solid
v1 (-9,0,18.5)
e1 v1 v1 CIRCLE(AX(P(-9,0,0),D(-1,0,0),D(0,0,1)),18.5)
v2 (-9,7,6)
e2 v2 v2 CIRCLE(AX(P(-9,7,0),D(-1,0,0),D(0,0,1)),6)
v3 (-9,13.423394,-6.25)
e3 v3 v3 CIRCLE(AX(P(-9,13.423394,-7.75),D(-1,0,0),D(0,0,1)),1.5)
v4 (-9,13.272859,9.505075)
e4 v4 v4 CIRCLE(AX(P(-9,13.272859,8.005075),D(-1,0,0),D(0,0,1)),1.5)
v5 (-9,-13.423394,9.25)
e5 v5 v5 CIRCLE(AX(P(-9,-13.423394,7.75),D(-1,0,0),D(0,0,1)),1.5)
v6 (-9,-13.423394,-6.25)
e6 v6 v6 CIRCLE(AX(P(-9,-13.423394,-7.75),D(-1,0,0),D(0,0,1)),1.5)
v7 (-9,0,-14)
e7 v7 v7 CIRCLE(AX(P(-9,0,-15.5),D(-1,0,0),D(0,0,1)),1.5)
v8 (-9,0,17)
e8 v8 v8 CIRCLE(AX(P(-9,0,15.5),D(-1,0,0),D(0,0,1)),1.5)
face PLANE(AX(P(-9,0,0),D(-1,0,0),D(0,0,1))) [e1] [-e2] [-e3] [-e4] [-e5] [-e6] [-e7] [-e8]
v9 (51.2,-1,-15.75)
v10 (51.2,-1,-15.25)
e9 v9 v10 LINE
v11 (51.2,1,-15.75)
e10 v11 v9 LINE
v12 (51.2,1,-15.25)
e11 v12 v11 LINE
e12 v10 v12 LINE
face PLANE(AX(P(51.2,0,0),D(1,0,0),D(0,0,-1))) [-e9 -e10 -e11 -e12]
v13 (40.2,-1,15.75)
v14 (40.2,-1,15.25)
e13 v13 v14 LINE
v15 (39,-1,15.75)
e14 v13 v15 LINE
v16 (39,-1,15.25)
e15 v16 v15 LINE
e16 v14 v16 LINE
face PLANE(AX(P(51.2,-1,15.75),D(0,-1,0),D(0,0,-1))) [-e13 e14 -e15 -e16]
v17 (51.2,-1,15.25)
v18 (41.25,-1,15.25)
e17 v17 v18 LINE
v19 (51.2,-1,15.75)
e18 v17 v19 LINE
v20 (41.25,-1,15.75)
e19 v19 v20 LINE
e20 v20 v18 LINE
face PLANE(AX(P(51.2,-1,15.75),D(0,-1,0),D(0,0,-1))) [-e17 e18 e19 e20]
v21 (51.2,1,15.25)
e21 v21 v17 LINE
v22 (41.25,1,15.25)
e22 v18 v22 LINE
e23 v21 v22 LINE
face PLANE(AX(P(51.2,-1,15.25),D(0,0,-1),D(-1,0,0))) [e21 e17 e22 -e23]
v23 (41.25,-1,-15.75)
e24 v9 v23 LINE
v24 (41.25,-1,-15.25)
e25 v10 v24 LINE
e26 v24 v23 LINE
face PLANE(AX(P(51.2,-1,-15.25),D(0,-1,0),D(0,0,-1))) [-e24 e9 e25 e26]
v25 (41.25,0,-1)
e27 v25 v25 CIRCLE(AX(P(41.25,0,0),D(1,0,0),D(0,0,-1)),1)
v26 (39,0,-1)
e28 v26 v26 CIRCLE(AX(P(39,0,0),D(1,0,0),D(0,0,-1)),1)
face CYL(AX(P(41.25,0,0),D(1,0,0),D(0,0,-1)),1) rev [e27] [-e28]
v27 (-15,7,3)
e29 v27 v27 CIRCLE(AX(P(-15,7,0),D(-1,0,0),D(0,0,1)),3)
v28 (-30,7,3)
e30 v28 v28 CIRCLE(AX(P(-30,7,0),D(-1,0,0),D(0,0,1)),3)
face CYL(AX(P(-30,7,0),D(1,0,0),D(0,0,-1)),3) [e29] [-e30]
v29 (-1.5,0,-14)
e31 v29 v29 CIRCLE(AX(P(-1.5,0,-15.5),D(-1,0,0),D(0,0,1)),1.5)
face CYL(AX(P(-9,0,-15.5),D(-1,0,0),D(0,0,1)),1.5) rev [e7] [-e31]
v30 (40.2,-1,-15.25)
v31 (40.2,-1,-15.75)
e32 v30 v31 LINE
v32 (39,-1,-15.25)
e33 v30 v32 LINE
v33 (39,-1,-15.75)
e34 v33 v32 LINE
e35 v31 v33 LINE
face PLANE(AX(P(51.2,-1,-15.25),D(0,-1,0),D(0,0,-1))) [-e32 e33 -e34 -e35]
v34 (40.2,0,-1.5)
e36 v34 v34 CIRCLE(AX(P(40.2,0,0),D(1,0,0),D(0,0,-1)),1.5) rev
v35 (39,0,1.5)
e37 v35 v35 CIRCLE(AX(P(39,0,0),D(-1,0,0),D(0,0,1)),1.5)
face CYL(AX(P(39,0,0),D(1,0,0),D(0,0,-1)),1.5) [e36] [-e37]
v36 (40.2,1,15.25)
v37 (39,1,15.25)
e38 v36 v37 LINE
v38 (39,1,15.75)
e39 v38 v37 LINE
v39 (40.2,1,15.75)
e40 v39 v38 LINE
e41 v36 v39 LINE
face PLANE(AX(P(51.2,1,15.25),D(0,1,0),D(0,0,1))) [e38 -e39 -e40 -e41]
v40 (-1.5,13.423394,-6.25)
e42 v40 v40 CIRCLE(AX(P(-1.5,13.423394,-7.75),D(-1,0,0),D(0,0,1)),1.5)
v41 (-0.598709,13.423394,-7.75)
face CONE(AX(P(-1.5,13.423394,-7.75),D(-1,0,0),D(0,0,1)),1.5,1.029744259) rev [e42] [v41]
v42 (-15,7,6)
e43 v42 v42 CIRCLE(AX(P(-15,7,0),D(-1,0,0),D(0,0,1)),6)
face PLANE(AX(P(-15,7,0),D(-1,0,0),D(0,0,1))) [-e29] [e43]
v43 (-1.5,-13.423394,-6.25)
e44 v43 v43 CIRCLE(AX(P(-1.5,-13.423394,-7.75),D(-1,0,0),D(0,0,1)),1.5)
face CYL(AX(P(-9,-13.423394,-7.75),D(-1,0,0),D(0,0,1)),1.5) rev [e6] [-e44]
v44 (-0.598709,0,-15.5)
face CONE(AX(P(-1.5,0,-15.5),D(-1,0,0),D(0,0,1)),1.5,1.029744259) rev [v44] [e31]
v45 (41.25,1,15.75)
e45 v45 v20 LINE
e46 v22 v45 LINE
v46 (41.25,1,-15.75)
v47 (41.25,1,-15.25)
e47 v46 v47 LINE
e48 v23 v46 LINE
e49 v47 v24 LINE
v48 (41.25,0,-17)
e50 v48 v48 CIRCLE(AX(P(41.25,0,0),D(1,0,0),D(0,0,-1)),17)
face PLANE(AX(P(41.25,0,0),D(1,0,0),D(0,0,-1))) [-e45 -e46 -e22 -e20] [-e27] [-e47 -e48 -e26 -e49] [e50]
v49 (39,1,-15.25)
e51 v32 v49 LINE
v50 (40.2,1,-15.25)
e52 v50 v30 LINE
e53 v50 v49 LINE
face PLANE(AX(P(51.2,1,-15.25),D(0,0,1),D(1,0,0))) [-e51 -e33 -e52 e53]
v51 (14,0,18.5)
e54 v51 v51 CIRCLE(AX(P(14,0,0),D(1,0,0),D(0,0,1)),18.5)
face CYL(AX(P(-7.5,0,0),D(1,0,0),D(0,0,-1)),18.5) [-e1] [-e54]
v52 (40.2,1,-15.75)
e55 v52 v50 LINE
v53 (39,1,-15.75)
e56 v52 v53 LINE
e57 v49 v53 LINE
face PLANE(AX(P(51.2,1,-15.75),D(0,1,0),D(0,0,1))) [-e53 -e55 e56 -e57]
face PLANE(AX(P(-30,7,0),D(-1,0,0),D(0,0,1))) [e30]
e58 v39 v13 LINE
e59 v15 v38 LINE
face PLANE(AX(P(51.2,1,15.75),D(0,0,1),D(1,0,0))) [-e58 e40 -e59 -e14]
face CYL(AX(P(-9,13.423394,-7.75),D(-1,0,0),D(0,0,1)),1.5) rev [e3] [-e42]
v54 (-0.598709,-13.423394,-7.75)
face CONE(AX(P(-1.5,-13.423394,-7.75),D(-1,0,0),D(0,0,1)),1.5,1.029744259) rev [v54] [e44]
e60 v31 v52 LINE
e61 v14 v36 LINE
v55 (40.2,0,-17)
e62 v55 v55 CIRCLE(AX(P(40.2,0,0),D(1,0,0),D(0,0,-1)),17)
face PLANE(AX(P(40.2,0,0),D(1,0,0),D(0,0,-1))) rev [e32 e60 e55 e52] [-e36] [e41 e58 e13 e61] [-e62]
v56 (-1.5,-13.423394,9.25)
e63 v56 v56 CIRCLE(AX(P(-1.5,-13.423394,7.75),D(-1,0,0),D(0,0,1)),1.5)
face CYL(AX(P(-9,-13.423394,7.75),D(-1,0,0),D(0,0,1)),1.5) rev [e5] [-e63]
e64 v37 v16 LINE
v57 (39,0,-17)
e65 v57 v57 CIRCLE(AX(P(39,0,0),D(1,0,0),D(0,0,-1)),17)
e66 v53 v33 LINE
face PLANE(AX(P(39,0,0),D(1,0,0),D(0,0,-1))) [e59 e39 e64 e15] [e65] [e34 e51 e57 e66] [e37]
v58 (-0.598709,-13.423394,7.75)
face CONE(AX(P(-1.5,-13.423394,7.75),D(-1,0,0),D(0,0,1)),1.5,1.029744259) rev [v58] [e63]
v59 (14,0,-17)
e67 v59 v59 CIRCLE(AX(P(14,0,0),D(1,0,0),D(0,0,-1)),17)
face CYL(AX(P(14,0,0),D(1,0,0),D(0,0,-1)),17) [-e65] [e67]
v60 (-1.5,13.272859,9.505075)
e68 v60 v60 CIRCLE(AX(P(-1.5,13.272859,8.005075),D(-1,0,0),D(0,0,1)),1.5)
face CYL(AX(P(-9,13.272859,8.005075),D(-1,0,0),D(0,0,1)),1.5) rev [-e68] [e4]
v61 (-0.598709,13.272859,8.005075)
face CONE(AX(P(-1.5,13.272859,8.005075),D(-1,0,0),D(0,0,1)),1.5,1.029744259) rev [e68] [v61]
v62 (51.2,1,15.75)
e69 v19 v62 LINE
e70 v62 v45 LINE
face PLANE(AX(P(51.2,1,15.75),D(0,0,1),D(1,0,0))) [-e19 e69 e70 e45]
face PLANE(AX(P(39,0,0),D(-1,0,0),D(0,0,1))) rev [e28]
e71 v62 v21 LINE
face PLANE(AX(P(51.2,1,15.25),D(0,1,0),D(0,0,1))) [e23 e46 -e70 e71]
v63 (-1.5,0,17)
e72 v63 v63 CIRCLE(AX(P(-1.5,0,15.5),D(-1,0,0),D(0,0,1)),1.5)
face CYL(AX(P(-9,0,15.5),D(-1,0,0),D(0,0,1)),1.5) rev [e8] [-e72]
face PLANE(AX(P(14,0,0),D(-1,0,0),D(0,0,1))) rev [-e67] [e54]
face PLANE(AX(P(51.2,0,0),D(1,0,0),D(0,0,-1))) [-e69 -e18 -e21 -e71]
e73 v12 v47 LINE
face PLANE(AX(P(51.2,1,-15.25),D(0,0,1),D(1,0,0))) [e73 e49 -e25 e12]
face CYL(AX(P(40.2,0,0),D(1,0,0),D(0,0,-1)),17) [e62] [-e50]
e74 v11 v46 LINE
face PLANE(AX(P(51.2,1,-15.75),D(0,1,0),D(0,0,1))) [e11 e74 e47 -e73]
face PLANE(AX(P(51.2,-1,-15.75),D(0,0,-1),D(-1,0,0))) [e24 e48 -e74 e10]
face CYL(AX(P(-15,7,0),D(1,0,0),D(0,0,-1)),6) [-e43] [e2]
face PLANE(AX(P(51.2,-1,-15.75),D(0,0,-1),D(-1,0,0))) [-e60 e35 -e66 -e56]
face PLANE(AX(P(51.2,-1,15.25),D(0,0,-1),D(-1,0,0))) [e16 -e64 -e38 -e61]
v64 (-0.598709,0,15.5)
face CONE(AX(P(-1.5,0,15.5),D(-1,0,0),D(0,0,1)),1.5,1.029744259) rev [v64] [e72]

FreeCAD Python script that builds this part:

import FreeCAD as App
import Part
import Sketcher
from FreeCAD import Vector

doc = App.newDocument("Part")
body = doc.addObject("PartDesign::Body", "Body")

sketch1 = body.newObject("Sketcher::SketchObject", "Sketch")
sketch1.AttachmentSupport = (doc.getObject("YZ_Plane"), [""])
sketch1.MapMode = "FlatFace"
sketch1.AttachmentOffset = App.Placement(Vector(0, 0, 41.25), App.Rotation())
sketch1.addGeometry(Part.Circle(Vector(0, 0, 0), Vector(0, 0, 1), 17), False)
sketch1.addConstraint([
    Sketcher.Constraint("Coincident", 0, 3, -1, 1),
    Sketcher.Constraint("Diameter", 0, 34.0),
])
pad1 = body.newObject("PartDesign::Pad", "Pad")
pad1.Profile = sketch1
pad1.Length = 1.05
pad1.Reversed = True

sketch2 = body.newObject("Sketcher::SketchObject", "Sketch001")
sketch2.AttachmentSupport = (doc.getObject("YZ_Plane"), [""])
sketch2.MapMode = "FlatFace"
sketch2.AttachmentOffset = App.Placement(Vector(0, 0, 40.2), App.Rotation())
sketch2.addGeometry([
    Part.LineSegment(Vector(1, 15.25, 0), Vector(-1, 15.25, 0)),
    Part.LineSegment(Vector(-1, 15.25, 0), Vector(-1, 15.75, 0)),
    Part.LineSegment(Vector(-1, 15.75, 0), Vector(1, 15.75, 0)),
    Part.LineSegment(Vector(1, 15.75, 0), Vector(1, 15.25, 0)),
    Part.LineSegment(Vector(1, -15.75, 0), Vector(-1, -15.75, 0)),
    Part.LineSegment(Vector(-1, -15.75, 0), Vector(-1, -15.25, 0)),
    Part.LineSegment(Vector(-1, -15.25, 0), Vector(1, -15.25, 0)),
    Part.LineSegment(Vector(1, -15.25, 0), Vector(1, -15.75, 0)),
], False)
sketch2.addConstraint([
    Sketcher.Constraint("Coincident", 0, 2, 1, 1),
    Sketcher.Constraint("Coincident", 1, 2, 2, 1),
    Sketcher.Constraint("Coincident", 2, 2, 3, 1),
    Sketcher.Constraint("Coincident", 3, 2, 0, 1),
    Sketcher.Constraint("Coincident", 4, 2, 5, 1),
    Sketcher.Constraint("Coincident", 5, 2, 6, 1),
    Sketcher.Constraint("Coincident", 6, 2, 7, 1),
    Sketcher.Constraint("Coincident", 7, 2, 4, 1),
    Sketcher.Constraint("Horizontal", 0),
    Sketcher.Constraint("Vertical", 1),
    Sketcher.Constraint("Horizontal", 2),
    Sketcher.Constraint("Vertical", 3),
    Sketcher.Constraint("Horizontal", 4),
    Sketcher.Constraint("Vertical", 5),
    Sketcher.Constraint("Horizontal", 6),
    Sketcher.Constraint("Vertical", 7),
    Sketcher.Constraint("Symmetric", 2, 2, 4, 2, -1, 1),
    Sketcher.Constraint("Symmetric", 0, 2, 6, 2, -1, 1),
    Sketcher.Constraint("Vertical", 1, 2, 4, 2),
    Sketcher.Constraint("DistanceX", 0, 2, 0, 1, 2.0),
    Sketcher.Constraint("DistanceY", 1, 1, 1, 2, 0.5),
    Sketcher.Constraint("DistanceY", 4, 2, 0, 2, 31.0),
])
pad2 = body.newObject("PartDesign::Pad", "Pad001")
pad2.Profile = sketch2
pad2.Type = "TwoLengths"
pad2.Length = 1.2
pad2.Length2 = 11
pad2.Reversed = True

sketch3 = body.newObject("Sketcher::SketchObject", "Sketch002")
sketch3.AttachmentSupport = (doc.getObject("YZ_Plane"), [""])
sketch3.MapMode = "FlatFace"
sketch3.AttachmentOffset = App.Placement(Vector(0, 0, 40.2), App.Rotation())
sketch3.addGeometry(Part.Circle(Vector(0, 0, 0), Vector(0, 0, 1), 1.5), False)
sketch3.addConstraint([
    Sketcher.Constraint("Coincident", 0, 3, -1, 1),
    Sketcher.Constraint("Diameter", 0, 3.0),
])
pad3 = body.newObject("PartDesign::Pad", "Pad002")
pad3.Profile = sketch3
pad3.Length = 1.2
pad3.Reversed = True

sketch4 = body.newObject("Sketcher::SketchObject", "Sketch003")
sketch4.AttachmentSupport = (doc.getObject("YZ_Plane"), [""])
sketch4.MapMode = "FlatFace"
sketch4.AttachmentOffset = App.Placement(Vector(0, 0, 39), App.Rotation())
sketch4.addGeometry(Part.Circle(Vector(0, 0, 0), Vector(0, 0, 1), 17), False)
sketch4.addConstraint([
    Sketcher.Constraint("Coincident", 0, 3, -1, 1),
    Sketcher.Constraint("Diameter", 0, 34.0),
])
pad4 = body.newObject("PartDesign::Pad", "Pad003")
pad4.Profile = sketch4
pad4.Length = 25
pad4.Reversed = True

sketch5 = body.newObject("Sketcher::SketchObject", "Sketch004")
sketch5.AttachmentSupport = (doc.getObject("YZ_Plane"), [""])
sketch5.MapMode = "FlatFace"
sketch5.AttachmentOffset = App.Placement(Vector(0, 0, 14), App.Rotation())
sketch5.addGeometry(Part.Circle(Vector(0, 0, 0), Vector(0, 0, 1), 18.5), False)
sketch5.addConstraint([
    Sketcher.Constraint("Coincident", 0, 3, -1, 1),
    Sketcher.Constraint("Diameter", 0, 37.0),
])
pad5 = body.newObject("PartDesign::Pad", "Pad004")
pad5.Profile = sketch5
pad5.Length = 21.5
pad5.Reversed = True

sketch6 = body.newObject("Sketcher::SketchObject", "Sketch005")
sketch6.AttachmentSupport = (doc.getObject("YZ_Plane"), [""])
sketch6.MapMode = "FlatFace"
sketch6.AttachmentOffset = App.Placement(Vector(0, 0, -7.5), App.Rotation())
sketch6.addGeometry(Part.Circle(Vector(0, 0, 0), Vector(0, 0, 1), 18.5), False)
sketch6.addConstraint([
    Sketcher.Constraint("Coincident", 0, 3, -1, 1),
    Sketcher.Constraint("Diameter", 0, 37.0),
])
pad6 = body.newObject("PartDesign::Pad", "Pad005")
pad6.Profile = sketch6
pad6.Length = 1.5
pad6.Reversed = True

sketch7 = body.newObject("Sketcher::SketchObject", "Sketch006")
sketch7.AttachmentSupport = (doc.getObject("YZ_Plane"), [""])
sketch7.MapMode = "FlatFace"
sketch7.AttachmentOffset = App.Placement(Vector(0, 0, -9), App.Rotation())
sketch7.addGeometry(Part.Circle(Vector(7, 0, 0), Vector(0, 0, 1), 6), False)
sketch7.addConstraint([
    Sketcher.Constraint("PointOnObject", 0, 3, -1),
    Sketcher.Constraint("Diameter", 0, 12.0),
    Sketcher.Constraint("DistanceX", -1, 1, 0, 3, 7.0),
])
pad7 = body.newObject("PartDesign::Pad", "Pad006")
pad7.Profile = sketch7
pad7.Length = 6
pad7.Reversed = True

sketch8 = body.newObject("Sketcher::SketchObject", "Sketch007")
sketch8.AttachmentSupport = (doc.getObject("YZ_Plane"), [""])
sketch8.MapMode = "FlatFace"
sketch8.AttachmentOffset = App.Placement(Vector(0, 0, -15), App.Rotation())
sketch8.addGeometry(Part.Circle(Vector(7, 0, 0), Vector(0, 0, 1), 3), False)
sketch8.addConstraint([
    Sketcher.Constraint("PointOnObject", 0, 3, -1),
    Sketcher.Constraint("Diameter", 0, 6.0),
    Sketcher.Constraint("DistanceX", -1, 1, 0, 3, 7.0),
])
doc.recompute()
hole = body.newObject("PartDesign::Hole", "Hole")
hole.Profile = sketch8
hole.ThreadType = "None"
hole.Diameter = 6
hole.DepthType = "Dimension"
hole.Depth = 2.2
hole.DrillPoint = "Flat"
hole.Reversed = True

sketch9 = body.newObject("Sketcher::SketchObject", "Sketch008")
sketch9.AttachmentSupport = (doc.getObject("YZ_Plane"), [""])
sketch9.MapMode = "FlatFace"
sketch9.AttachmentOffset = App.Placement(Vector(0, 0, 41.25), App.Rotation())
sketch9.addGeometry(Part.Circle(Vector(0, 0, 0), Vector(0, 0, 1), 1), False)
sketch9.addConstraint([
    Sketcher.Constraint("Coincident", 0, 3, -1, 1),
    Sketcher.Constraint("Diameter", 0, 2.0),
])
doc.recompute()
hole2 = body.newObject("PartDesign::Hole", "Hole001")
hole2.Profile = sketch9
hole2.ThreadType = "None"
hole2.Diameter = 2
hole2.DepthType = "Dimension"
hole2.Depth = 2.25
hole2.DrillPoint = "Flat"

sketch10 = body.newObject("Sketcher::SketchObject", "Sketch009")
sketch10.AttachmentSupport = (doc.getObject("YZ_Plane"), [""])
sketch10.MapMode = "FlatFace"
sketch10.AttachmentOffset = App.Placement(Vector(0, 0, -9), App.Rotation())
sketch10.addGeometry([
    Part.Circle(Vector(0, -15.5, 0), Vector(0, 0, 1), 1.5),
    Part.Circle(Vector(13.423394, -7.75, 0), Vector(0, 0, 1), 1.5),
    Part.Circle(Vector(13.272859, 8.005075, 0), Vector(0, 0, 1), 1.5),
    Part.Circle(Vector(0, 15.5, 0), Vector(0, 0, 1), 1.5),
    Part.Circle(Vector(-13.423394, 7.75, 0), Vector(0, 0, 1), 1.5),
    Part.Circle(Vector(-13.423394, -7.75, 0), Vector(0, 0, 1), 1.5),
], False)
sketch10.addConstraint([
    Sketcher.Constraint("Equal", 0, 1),
    Sketcher.Constraint("Equal", 1, 2),
    Sketcher.Constraint("Equal", 2, 3),
    Sketcher.Constraint("Equal", 3, 4),
    Sketcher.Constraint("Equal", 4, 5),
    Sketcher.Constraint("Symmetric", 0, 3, 3, 3, -1, 1),
    Sketcher.Constraint("Symmetric", 1, 3, 4, 3, -1, 1),
    Sketcher.Constraint("Symmetric", 1, 3, 5, 3, -2),
    Sketcher.Constraint("PointOnObject", 0, 3, -2),
    Sketcher.Constraint("Diameter", 0, 3.0),
    Sketcher.Constraint("DistanceY", 0, 3, 3, 3, 31.0),
    Sketcher.Constraint("DistanceY", 1, 3, 4, 3, 15.5),
    Sketcher.Constraint("DistanceX", -1, 1, 2, 3, 13.272859),
    Sketcher.Constraint("DistanceX", -1, 1, 1, 3, 13.423394),
    Sketcher.Constraint("DistanceY", -1, 1, 2, 3, 8.005075),
])
doc.recompute()
hole3 = body.newObject("PartDesign::Hole", "Hole002")
hole3.Profile = sketch10
hole3.ThreadType = "None"
hole3.Diameter = 3
hole3.DepthType = "Dimension"
hole3.Depth = 7.5
hole3.DrillPoint = "Angled"
hole3.DrillPointAngle = 118
hole3.Reversed = True

sketch11 = body.newObject("Sketcher::SketchObject", "Sketch010")
sketch11.AttachmentSupport = (doc.getObject("YZ_Plane"), [""])
sketch11.MapMode = "FlatFace"
sketch11.AttachmentOffset = App.Placement(Vector(0, 0, -9), App.Rotation())
sketch11.addGeometry(Part.Circle(Vector(7, 0, 0), Vector(0, 0, 1), 3), False)
sketch11.addConstraint([
    Sketcher.Constraint("PointOnObject", 0, 3, -1),
    Sketcher.Constraint("Diameter", 0, 6.0),
    Sketcher.Constraint("DistanceX", -1, 1, 0, 3, 7.0),
])
pad8 = body.newObject("PartDesign::Pad", "Pad007")
pad8.Profile = sketch11
pad8.Length = 21
pad8.Reversed = True

doc.recompute()
